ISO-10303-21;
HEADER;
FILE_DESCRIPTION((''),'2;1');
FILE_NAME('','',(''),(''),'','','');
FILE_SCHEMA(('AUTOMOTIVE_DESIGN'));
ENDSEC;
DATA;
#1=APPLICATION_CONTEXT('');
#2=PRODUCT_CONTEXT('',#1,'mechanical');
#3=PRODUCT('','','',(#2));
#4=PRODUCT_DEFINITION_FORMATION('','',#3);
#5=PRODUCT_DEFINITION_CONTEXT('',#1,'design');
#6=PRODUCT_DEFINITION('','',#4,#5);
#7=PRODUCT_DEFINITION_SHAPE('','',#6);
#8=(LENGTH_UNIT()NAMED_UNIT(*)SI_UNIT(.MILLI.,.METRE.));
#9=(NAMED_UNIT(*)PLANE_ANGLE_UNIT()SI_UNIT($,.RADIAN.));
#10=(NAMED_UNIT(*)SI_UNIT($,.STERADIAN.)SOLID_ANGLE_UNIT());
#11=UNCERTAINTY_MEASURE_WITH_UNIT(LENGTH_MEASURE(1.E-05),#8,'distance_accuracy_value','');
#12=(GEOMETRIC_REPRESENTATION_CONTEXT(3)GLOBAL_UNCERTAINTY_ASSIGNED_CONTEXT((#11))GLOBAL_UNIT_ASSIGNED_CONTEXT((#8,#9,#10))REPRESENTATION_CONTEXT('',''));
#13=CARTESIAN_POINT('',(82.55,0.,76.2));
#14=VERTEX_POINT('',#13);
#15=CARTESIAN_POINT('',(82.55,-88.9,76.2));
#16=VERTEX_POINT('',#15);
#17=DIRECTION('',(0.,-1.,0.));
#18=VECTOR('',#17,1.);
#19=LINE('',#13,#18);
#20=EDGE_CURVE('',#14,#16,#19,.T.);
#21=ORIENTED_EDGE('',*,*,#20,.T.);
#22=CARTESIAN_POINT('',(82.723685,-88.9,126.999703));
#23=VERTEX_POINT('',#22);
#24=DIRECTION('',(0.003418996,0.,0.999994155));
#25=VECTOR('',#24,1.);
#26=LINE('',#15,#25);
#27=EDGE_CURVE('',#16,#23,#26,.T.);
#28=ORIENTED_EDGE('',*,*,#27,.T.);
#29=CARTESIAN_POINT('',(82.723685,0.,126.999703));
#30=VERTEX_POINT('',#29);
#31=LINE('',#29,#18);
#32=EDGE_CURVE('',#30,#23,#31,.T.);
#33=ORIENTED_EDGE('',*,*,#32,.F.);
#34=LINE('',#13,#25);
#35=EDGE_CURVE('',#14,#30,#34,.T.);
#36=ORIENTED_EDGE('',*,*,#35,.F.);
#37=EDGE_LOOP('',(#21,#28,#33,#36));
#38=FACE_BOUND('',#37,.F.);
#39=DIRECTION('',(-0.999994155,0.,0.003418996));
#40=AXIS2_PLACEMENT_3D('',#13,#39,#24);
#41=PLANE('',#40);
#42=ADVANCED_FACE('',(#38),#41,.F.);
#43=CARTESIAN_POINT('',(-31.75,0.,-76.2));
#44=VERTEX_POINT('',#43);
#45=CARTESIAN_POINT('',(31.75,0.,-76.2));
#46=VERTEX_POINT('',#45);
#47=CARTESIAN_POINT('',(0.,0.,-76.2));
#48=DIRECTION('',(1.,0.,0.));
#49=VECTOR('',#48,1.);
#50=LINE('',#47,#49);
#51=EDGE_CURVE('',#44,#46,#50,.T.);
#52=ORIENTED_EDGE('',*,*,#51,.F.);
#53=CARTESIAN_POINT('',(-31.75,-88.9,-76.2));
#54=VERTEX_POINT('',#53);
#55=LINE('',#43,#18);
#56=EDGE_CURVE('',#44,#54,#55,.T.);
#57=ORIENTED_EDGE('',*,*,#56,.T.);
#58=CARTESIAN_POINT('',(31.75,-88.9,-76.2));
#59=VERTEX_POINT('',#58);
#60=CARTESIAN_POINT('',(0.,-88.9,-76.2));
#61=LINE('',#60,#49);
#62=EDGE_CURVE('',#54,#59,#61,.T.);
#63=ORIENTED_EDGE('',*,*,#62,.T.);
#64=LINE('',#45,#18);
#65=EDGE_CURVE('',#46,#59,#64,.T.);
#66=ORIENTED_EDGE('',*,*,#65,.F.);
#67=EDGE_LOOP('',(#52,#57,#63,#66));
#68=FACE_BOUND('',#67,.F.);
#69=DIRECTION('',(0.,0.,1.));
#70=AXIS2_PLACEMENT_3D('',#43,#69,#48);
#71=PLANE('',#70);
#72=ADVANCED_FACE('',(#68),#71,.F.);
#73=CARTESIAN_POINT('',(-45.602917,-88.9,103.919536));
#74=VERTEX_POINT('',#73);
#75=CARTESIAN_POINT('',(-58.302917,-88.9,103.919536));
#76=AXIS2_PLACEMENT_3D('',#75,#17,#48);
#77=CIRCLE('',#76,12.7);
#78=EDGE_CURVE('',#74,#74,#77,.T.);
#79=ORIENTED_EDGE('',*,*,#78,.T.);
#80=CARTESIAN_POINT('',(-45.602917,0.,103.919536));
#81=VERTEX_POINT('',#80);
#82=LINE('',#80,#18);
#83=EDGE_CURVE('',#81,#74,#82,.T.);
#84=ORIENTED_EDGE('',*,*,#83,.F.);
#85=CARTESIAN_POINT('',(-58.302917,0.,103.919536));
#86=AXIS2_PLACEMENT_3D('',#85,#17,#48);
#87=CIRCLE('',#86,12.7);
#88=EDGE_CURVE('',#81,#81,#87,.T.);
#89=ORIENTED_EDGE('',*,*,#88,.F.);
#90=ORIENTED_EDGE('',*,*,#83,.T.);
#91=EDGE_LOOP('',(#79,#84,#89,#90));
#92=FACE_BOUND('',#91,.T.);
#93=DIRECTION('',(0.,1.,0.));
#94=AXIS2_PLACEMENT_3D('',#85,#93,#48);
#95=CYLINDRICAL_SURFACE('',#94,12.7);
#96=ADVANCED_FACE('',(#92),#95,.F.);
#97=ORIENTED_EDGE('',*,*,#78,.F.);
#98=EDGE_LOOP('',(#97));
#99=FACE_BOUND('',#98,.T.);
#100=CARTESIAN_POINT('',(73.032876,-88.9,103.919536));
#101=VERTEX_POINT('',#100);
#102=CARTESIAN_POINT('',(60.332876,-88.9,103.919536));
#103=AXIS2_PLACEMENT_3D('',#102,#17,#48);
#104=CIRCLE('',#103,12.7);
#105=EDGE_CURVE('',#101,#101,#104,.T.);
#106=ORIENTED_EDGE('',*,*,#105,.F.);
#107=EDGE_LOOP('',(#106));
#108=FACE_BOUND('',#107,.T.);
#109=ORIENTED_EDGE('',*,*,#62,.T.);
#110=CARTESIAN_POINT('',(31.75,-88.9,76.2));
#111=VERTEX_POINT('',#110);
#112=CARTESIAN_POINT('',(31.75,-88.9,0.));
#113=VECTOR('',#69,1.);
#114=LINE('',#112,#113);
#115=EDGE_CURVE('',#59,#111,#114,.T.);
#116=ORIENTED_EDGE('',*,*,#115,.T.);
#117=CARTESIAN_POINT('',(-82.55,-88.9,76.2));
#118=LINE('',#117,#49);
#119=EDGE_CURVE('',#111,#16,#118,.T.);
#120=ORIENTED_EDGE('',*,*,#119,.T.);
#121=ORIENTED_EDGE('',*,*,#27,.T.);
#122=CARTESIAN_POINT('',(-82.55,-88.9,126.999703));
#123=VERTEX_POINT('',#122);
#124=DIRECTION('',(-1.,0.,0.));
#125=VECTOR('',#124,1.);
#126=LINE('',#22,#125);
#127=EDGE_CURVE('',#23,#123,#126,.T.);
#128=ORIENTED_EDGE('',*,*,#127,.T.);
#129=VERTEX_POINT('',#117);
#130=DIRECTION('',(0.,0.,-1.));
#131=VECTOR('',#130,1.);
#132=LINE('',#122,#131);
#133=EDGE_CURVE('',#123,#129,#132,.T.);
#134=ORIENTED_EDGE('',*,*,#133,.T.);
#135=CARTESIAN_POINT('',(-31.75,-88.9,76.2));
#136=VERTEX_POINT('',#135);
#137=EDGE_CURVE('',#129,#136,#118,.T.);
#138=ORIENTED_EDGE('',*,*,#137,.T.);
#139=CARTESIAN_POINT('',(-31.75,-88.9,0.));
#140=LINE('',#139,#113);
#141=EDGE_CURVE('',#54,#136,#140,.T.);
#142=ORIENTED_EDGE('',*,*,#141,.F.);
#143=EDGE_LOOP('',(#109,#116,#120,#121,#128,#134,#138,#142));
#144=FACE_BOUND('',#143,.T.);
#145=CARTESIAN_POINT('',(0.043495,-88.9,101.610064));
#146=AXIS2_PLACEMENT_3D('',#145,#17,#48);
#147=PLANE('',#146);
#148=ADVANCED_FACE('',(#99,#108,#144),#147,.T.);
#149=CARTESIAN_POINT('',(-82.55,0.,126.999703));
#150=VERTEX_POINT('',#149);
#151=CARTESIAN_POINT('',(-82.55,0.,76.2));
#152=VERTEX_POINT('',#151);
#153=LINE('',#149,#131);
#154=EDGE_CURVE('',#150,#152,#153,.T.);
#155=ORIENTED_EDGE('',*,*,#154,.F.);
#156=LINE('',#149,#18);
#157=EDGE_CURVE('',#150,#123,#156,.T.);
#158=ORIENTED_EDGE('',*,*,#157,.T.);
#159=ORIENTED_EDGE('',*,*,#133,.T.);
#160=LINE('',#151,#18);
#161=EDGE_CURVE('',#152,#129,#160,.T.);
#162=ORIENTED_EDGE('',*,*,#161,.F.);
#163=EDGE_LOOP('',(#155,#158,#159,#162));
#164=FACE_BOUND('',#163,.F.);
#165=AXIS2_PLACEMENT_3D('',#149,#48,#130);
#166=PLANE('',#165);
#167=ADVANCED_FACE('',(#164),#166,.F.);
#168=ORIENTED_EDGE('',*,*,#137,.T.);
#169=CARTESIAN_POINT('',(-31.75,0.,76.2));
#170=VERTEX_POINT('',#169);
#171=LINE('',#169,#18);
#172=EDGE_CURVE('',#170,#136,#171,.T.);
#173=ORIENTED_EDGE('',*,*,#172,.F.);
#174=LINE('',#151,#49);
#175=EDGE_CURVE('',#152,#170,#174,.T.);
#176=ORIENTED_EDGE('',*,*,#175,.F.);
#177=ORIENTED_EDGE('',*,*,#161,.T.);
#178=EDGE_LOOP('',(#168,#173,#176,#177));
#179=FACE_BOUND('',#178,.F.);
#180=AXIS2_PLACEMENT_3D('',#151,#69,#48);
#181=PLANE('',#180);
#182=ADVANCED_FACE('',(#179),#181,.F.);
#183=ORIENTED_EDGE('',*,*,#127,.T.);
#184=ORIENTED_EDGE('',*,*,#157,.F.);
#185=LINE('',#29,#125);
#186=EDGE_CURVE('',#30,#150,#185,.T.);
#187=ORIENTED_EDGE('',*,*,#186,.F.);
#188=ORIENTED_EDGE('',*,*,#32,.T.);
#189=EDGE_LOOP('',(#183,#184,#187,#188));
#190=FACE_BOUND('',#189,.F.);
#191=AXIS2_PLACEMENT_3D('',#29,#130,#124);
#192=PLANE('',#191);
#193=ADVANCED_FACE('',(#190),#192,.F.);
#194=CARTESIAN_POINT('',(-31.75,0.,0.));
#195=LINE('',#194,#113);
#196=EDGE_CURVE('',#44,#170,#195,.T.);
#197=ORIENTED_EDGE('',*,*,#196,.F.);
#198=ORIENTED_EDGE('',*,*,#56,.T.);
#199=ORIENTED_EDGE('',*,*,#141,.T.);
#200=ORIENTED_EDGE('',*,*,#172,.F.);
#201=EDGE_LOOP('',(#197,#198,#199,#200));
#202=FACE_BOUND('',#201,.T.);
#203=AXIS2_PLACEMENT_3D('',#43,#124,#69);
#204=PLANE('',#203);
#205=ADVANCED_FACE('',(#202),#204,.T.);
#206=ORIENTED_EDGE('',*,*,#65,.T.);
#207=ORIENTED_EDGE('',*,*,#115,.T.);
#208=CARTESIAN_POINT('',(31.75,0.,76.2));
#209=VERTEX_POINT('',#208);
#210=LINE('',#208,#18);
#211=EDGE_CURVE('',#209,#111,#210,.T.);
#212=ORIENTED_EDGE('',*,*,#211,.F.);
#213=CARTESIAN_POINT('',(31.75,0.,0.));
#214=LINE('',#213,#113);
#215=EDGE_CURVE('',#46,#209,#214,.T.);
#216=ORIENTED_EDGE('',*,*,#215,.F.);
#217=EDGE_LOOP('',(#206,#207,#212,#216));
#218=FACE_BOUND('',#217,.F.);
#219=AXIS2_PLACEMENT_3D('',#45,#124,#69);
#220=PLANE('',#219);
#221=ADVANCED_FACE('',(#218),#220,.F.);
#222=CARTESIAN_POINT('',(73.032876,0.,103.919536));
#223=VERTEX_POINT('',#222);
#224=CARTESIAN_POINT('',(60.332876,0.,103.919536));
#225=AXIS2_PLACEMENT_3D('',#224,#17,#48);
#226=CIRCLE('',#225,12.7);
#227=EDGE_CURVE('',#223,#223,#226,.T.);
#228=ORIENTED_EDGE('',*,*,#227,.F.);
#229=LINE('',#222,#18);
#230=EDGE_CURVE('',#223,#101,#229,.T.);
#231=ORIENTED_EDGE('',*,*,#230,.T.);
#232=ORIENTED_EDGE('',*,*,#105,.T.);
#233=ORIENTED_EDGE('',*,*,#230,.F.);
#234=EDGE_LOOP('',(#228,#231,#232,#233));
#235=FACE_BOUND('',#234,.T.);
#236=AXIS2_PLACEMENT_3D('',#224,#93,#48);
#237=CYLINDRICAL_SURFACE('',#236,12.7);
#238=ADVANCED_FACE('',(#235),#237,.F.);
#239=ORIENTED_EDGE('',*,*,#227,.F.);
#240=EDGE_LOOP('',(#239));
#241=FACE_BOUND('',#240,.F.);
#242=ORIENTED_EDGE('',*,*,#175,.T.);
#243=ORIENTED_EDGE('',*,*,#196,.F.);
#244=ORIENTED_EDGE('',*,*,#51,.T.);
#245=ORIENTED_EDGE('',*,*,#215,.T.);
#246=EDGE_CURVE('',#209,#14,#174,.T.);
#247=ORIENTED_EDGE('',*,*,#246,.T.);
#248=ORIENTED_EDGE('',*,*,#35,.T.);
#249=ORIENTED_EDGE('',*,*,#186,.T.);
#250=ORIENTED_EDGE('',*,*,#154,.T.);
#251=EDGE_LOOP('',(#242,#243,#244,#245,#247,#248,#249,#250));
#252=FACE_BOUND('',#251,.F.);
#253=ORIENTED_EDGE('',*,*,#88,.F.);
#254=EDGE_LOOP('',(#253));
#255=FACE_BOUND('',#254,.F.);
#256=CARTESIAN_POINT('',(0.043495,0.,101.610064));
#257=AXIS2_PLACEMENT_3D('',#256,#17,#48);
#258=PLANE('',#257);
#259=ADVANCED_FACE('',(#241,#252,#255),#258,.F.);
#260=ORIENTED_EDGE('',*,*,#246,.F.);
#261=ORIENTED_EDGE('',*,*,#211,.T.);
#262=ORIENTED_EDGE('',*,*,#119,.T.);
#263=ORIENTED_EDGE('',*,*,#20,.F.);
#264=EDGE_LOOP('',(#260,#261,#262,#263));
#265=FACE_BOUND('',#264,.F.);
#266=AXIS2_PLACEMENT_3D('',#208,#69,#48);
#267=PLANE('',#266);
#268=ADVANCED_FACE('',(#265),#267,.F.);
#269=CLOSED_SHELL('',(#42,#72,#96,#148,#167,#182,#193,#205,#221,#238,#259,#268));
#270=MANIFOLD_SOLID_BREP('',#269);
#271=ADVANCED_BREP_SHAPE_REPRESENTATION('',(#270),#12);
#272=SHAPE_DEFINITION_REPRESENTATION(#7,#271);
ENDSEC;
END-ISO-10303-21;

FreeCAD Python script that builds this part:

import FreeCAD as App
import Part
import Sketcher
Q = App.Units.Quantity

doc = App.newDocument("Part")
body = doc.addObject("PartDesign::Body", "Body")

sketch1 = body.newObject("Sketcher::SketchObject", "Sketch")
sketch1.AttachmentSupport = (doc.getObject("XZ_Plane"), [""])
sketch1.MapMode = "FlatFace"
sketch1.addGeometry([
    Part.LineSegment(App.Vector(-82.55, 126.999703, 0), App.Vector(-82.55, 76.2, 0)),
    Part.LineSegment(App.Vector(-82.55, 76.2, 0), App.Vector(-31.75, 76.2, 0)),
    Part.LineSegment(App.Vector(-31.75, 76.2, 0), App.Vector(-31.75, -76.2, 0)),
    Part.LineSegment(App.Vector(-31.75, -76.2, 0), App.Vector(31.75, -76.2, 0)),
    Part.LineSegment(App.Vector(31.75, -76.2, 0), App.Vector(31.75, 76.2, 0)),
    Part.LineSegment(App.Vector(31.75, 76.2, 0), App.Vector(82.55, 76.2, 0)),
    Part.LineSegment(App.Vector(82.55, 76.2, 0), App.Vector(82.723685, 126.999703, 0)),
    Part.LineSegment(App.Vector(82.723685, 126.999703, 0), App.Vector(-82.55, 126.999703, 0)),
    Part.Circle(App.Vector(-58.302917, 103.919536, 0), App.Vector(0, 0, 1), 12.7),
    Part.Circle(App.Vector(60.332876, 103.919536, 0), App.Vector(0, 0, 1), 12.7),
], False)
sketch1.addConstraint([
    Sketcher.Constraint("Coincident", 0, 2, 1, 1),
    Sketcher.Constraint("Coincident", 1, 2, 2, 1),
    Sketcher.Constraint("Coincident", 2, 2, 3, 1),
    Sketcher.Constraint("Coincident", 3, 2, 4, 1),
    Sketcher.Constraint("Coincident", 4, 2, 5, 1),
    Sketcher.Constraint("Coincident", 5, 2, 6, 1),
    Sketcher.Constraint("Coincident", 6, 2, 7, 1),
    Sketcher.Constraint("Coincident", 7, 2, 0, 1),
    Sketcher.Constraint("Vertical", 0),
    Sketcher.Constraint("Horizontal", 1),
    Sketcher.Constraint("Vertical", 2),
    Sketcher.Constraint("Horizontal", 3),
    Sketcher.Constraint("Vertical", 4),
    Sketcher.Constraint("Horizontal", 5),
    Sketcher.Constraint("Horizontal", 7),
    Sketcher.Constraint("Equal", 8, 9),
    Sketcher.Constraint("Symmetric", 1, 2, 3, 2, -1, 1),
    Sketcher.Constraint("Symmetric", 0, 2, 5, 2, -2),
    Sketcher.Constraint("Horizontal", 8, 3, 9, 3),
    Sketcher.Constraint("Diameter", 8, Q("1 in")),
    Sketcher.Constraint("DistanceX", 1, 1, 1, 2, Q("2 in")),
    Sketcher.Constraint("DistanceY", 2, 2, 2, 1, Q("6 in")),
    Sketcher.Constraint("Distance", 6, Q("2 in")),
    Sketcher.Constraint("DistanceX", 3, 1, 3, 2, Q("2.5 in")),
    Sketcher.Constraint("DistanceX", 8, 3, 6, 2, 141.026602),
    Sketcher.Constraint("DistanceX", 7, 2, 7, 1, 165.273685),
    Sketcher.Constraint("DistanceX", 9, 3, 6, 2, 22.390809),
    Sketcher.Constraint("DistanceY", -1, 1, 8, 3, 103.919536),
])
pad1 = body.newObject("PartDesign::Pad", "Pad")
pad1.Profile = sketch1
pad1.Length = Q("3.5 in")

doc.recompute()
